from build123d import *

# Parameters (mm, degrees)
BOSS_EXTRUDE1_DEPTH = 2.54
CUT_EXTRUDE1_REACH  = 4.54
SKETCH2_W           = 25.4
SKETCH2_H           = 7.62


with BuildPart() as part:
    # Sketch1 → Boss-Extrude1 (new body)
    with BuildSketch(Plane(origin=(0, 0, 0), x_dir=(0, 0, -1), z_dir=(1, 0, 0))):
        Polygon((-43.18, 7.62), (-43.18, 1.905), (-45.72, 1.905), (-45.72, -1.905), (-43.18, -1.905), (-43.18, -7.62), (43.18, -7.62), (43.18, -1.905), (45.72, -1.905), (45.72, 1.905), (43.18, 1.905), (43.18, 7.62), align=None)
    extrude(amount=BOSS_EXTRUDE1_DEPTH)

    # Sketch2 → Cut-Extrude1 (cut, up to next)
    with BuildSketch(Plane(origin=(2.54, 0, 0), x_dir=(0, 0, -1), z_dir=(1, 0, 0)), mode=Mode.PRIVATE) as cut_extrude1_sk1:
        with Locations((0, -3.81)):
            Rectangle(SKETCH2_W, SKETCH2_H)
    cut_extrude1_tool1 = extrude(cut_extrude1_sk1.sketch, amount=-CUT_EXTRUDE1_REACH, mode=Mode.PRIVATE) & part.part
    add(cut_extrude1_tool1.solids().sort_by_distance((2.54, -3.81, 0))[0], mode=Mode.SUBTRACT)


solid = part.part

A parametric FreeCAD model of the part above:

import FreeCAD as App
import Part
import Sketcher
from FreeCAD import Vector
Q = App.Units.Quantity


def add_polygon(sketch, points):
    """Adds a closed chain of lines whose ends are joined by coincident constraints."""
    first, n = sketch.GeometryCount, len(points)
    for a, b in zip(points, points[1:] + points[:1]):
        sketch.addGeometry(Part.LineSegment(App.Vector(*a, 0), App.Vector(*b, 0)), False)
    for i in range(n):
        sketch.addConstraint(Sketcher.Constraint("Coincident", first + i, 2, first + (i + 1) % n, 1))

doc = App.newDocument("Part")
body = doc.addObject("PartDesign::Body", "Body")

# Sketch on YZ plane
sketch1 = body.newObject("Sketcher::SketchObject", "Sketch")
sketch1.AttachmentSupport = (doc.getObject("YZ_Plane"), [""])
sketch1.MapMode = "FlatFace"
add_polygon(sketch1, [(7.6, 43.2), (1.9, 43.2), (1.9, 45.7), (-1.9, 45.7), (-1.9, 43.2), (-7.6, 43.2), (-7.6, -43.2), (-1.9, -43.2), (-1.9, -45.7), (1.9, -45.7), (1.9, -43.2), (7.6, -43.2)])  # lines 0-11
sketch1.addConstraint([
    Sketcher.Constraint("Horizontal", 0),
    Sketcher.Constraint("Vertical", 1),
    Sketcher.Constraint("Horizontal", 2),
    Sketcher.Constraint("Vertical", 3),
    Sketcher.Constraint("Horizontal", 4),
    Sketcher.Constraint("Vertical", 5),
    Sketcher.Constraint("Horizontal", 6),
    Sketcher.Constraint("Vertical", 7),
    Sketcher.Constraint("Horizontal", 8),
    Sketcher.Constraint("Vertical", 9),
    Sketcher.Constraint("Horizontal", 10),
    Sketcher.Constraint("Vertical", 11),
    Sketcher.Constraint("Symmetric", 0, 2, 6, 2, -1, 1),
    Sketcher.Constraint("Symmetric", 2, 2, 8, 2, -1, 1),
    Sketcher.Constraint("Symmetric", 4, 2, 10, 2, -1, 1),
    Sketcher.Constraint("Symmetric", 0, 2, 3, 2, -2),
    Sketcher.Constraint("DistanceY", 1, 1, 1, 2, Q("0.1 in")),
    Sketcher.Constraint("DistanceY", 5, 2, 5, 1, Q("3.4 in")),
    Sketcher.Constraint("DistanceX", 2, 2, 2, 1, Q("0.15 in")),
    Sketcher.Constraint("DistanceX", 4, 2, -1, 1, Q("0.3 in")),
])
pad1 = body.newObject("PartDesign::Pad", "Pad")
pad1.Profile = sketch1
pad1.Length = Q("0.1 in")

# Sketch on YZ plane
sketch2 = body.newObject("Sketcher::SketchObject", "Sketch001")
sketch2.AttachmentSupport = (doc.getObject("YZ_Plane"), [""])
sketch2.MapMode = "FlatFace"
sketch2.AttachmentOffset = App.Placement(Vector(0, 0, 0.1 * 25.4), App.Rotation())
add_polygon(sketch2, [(0, 13), (-8, 13), (-8, -13), (0, -13)])  # lines 0-3
sketch2.addConstraint([
    Sketcher.Constraint("Horizontal", 0),
    Sketcher.Constraint("Vertical", 1),
    Sketcher.Constraint("Horizontal", 2),
    Sketcher.Constraint("Vertical", 3),
    Sketcher.Constraint("Symmetric", 2, 2, 3, 2, -1, 1),
    Sketcher.Constraint("DistanceY", 1, 2, 1, 1, Q("1 in")),
    Sketcher.Constraint("DistanceX", 0, 2, 0, 1, Q("0.3 in")),
])
pocket1 = body.newObject("PartDesign::Pocket", "Pocket")
pocket1.Profile = sketch2
pocket1.Type = "UpToFirst"

doc.recompute()
